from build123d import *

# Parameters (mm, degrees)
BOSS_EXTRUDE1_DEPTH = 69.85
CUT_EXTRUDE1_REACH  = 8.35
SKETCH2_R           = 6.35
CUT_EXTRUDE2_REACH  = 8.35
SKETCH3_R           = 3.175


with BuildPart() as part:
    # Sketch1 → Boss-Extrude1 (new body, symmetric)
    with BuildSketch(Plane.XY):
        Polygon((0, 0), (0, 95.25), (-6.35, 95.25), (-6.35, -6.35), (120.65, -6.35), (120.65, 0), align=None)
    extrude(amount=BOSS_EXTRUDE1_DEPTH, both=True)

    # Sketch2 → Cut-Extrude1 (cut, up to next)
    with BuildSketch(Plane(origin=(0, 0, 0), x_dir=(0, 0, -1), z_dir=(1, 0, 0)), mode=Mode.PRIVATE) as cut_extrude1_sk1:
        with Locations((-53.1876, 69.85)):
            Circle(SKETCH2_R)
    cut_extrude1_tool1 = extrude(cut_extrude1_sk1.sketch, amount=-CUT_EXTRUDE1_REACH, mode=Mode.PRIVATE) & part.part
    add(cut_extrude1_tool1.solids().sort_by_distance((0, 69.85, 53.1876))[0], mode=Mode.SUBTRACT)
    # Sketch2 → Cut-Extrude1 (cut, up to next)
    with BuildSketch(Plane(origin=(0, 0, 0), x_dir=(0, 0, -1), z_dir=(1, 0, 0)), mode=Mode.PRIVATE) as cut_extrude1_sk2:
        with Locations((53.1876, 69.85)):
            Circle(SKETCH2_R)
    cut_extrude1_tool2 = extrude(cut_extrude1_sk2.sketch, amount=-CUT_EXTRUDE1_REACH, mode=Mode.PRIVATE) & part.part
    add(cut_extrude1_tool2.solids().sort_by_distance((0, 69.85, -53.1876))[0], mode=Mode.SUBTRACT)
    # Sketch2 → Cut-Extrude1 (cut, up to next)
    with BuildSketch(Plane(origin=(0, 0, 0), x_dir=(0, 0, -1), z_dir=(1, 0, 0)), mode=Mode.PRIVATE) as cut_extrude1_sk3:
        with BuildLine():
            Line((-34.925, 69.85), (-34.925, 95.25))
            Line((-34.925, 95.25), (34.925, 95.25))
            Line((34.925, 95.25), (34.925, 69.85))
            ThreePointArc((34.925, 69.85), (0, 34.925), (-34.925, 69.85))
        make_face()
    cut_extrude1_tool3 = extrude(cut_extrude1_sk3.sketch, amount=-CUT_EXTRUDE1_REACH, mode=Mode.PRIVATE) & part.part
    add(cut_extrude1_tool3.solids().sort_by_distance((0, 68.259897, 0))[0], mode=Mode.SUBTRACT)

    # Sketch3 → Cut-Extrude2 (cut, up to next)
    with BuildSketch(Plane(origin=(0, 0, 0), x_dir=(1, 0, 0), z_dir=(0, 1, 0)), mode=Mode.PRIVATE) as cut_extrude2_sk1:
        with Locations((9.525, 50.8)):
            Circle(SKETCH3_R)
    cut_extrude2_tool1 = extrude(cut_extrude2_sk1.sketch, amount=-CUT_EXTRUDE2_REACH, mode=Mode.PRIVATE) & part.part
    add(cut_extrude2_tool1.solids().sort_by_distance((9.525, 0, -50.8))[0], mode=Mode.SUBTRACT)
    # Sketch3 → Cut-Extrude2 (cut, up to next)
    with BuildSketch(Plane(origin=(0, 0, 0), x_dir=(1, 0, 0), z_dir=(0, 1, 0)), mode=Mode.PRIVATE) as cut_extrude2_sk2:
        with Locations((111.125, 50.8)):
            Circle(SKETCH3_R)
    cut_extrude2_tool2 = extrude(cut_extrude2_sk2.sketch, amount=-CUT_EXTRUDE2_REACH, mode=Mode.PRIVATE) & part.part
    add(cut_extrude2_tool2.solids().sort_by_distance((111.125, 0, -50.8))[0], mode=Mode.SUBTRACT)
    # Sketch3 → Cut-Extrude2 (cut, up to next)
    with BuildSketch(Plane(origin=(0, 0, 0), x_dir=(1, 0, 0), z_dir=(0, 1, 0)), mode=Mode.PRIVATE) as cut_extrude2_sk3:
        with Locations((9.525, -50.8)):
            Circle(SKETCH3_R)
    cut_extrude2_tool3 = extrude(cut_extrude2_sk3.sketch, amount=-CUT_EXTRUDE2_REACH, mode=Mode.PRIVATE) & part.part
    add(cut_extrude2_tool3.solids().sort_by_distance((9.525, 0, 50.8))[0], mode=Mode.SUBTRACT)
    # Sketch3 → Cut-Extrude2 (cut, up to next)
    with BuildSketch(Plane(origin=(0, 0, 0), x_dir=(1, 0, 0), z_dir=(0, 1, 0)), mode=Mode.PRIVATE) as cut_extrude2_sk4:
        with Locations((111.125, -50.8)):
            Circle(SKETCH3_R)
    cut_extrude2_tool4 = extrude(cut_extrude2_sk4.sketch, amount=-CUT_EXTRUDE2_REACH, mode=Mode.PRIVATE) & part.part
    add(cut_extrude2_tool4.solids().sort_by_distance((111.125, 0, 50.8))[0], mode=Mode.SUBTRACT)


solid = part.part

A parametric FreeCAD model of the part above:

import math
import FreeCAD as App
import Part
import Sketcher
Q = App.Units.Quantity

doc = App.newDocument("Part")
params = doc.addObject("Spreadsheet::Sheet", "Params")
for row, (alias, value) in enumerate([
    ("sketch1_width", "5 in"),
    ("sketch1_height", "4 in"),
    ("sketch1_width2", "0.25 in"),
    ("pad1_length", "5.5 in"),
    ("sketch2_diameter", "0.5 in"),
    ("sketch3_diameter", "0.5 in"),
    ("sketch4_width", "1 in"),
    ("sketch4_radius", "1.375 in"),
    ("sketch5_diameter", "0.25 in"),
    ("sketch6_diameter", "0.25 in"),
    ("sketch7_diameter", "0.25 in"),
    ("sketch8_diameter", "0.25 in"),
], start=1):
    params.set(f"A{row}", alias)
    params.set(f"B{row}", "=" + value)
    params.setAlias(f"B{row}", alias)

body = doc.addObject("PartDesign::Body", "Body")

# Sketch on XY plane
sketch1 = body.newObject("Sketcher::SketchObject", "Sketch")
sketch1.AttachmentSupport = (doc.getObject("XY_Plane"), [""])
sketch1.MapMode = "FlatFace"
sketch1.addGeometry([
    Part.LineSegment(App.Vector(0, 0, 0), App.Vector(0, 95, 0)),  # 0
    Part.LineSegment(App.Vector(0, 95, 0), App.Vector(-6, 95, 0)),  # 1
    Part.LineSegment(App.Vector(-6, 95, 0), App.Vector(-6, -6, 0)),  # 2
    Part.LineSegment(App.Vector(-6, -6, 0), App.Vector(121, -6, 0)),  # 3
    Part.LineSegment(App.Vector(121, -6, 0), App.Vector(121, 0, 0)),  # 4
    Part.LineSegment(App.Vector(121, 0, 0), App.Vector(0, 0, 0)),  # 5
], False)
sketch1.addConstraint([
    Sketcher.Constraint("Coincident", 0, 2, 1, 1),
    Sketcher.Constraint("Coincident", 1, 2, 2, 1),
    Sketcher.Constraint("Coincident", 2, 2, 3, 1),
    Sketcher.Constraint("Coincident", 3, 2, 4, 1),
    Sketcher.Constraint("Coincident", 4, 2, 5, 1),
    Sketcher.Constraint("Coincident", 5, 2, 0, 1),
    Sketcher.Constraint("Vertical", 0),
    Sketcher.Constraint("Horizontal", 1),
    Sketcher.Constraint("Vertical", 2),
    Sketcher.Constraint("Horizontal", 3),
    Sketcher.Constraint("Vertical", 4),
    Sketcher.Constraint("Horizontal", 5),
    Sketcher.Constraint("Coincident", 5, 2, -1, 1),
    Sketcher.Constraint("Equal", 1, 4),
    Sketcher.Constraint("DistanceX", 3, 1, 3, 2, Q("5 in")),
    Sketcher.Constraint("DistanceY", 2, 2, 2, 1, Q("4 in")),
    Sketcher.Constraint("DistanceX", 1, 2, 1, 1, Q("0.25 in")),
])
sketch1.setExpression("Constraints[14]", "Params.sketch1_width")
sketch1.setExpression("Constraints[15]", "Params.sketch1_height")
sketch1.setExpression("Constraints[16]", "Params.sketch1_width2")
pad1 = body.newObject("PartDesign::Pad", "Pad")
pad1.Profile = sketch1
pad1.setExpression("Length", "Params.pad1_length")
pad1.Midplane = True

# Sketch on YZ plane
sketch2 = body.newObject("Sketcher::SketchObject", "Sketch001")
sketch2.AttachmentSupport = (doc.getObject("YZ_Plane"), [""])
sketch2.MapMode = "FlatFace"
sketch2.addGeometry(Part.Circle(App.Vector(70, 53, 0), App.Vector(0, 0, 1), 6), False)
sketch2.addConstraint([
    Sketcher.Constraint("Diameter", 0, Q("0.5 in")),
    Sketcher.Constraint("DistanceX", -1, 1, 0, 3, Q("2.75 in")),
    Sketcher.Constraint("DistanceY", -1, 1, 0, 3, Q("2.094 in")),
])
sketch2.setExpression("Constraints[0]", "Params.sketch2_diameter")
pocket1 = body.newObject("PartDesign::Pocket", "Pocket")
pocket1.Profile = sketch2
pocket1.Type = "UpToFirst"

# Sketch on YZ plane
sketch3 = body.newObject("Sketcher::SketchObject", "Sketch002")
sketch3.AttachmentSupport = (doc.getObject("YZ_Plane"), [""])
sketch3.MapMode = "FlatFace"
sketch3.addGeometry(Part.Circle(App.Vector(70, -53, 0), App.Vector(0, 0, 1), 6), False)
sketch3.addConstraint([
    Sketcher.Constraint("Diameter", 0, Q("0.5 in")),
    Sketcher.Constraint("DistanceX", -1, 1, 0, 3, Q("2.75 in")),
    Sketcher.Constraint("DistanceY", 0, 3, -1, 1, Q("2.094 in")),
])
sketch3.setExpression("Constraints[0]", "Params.sketch3_diameter")
pocket2 = body.newObject("PartDesign::Pocket", "Pocket001")
pocket2.Profile = sketch3
pocket2.Type = "UpToFirst"

# Sketch on YZ plane
sketch4 = body.newObject("Sketcher::SketchObject", "Sketch003")
sketch4.AttachmentSupport = (doc.getObject("YZ_Plane"), [""])
sketch4.MapMode = "FlatFace"
sketch4.addGeometry([
    Part.LineSegment(App.Vector(95, 35, 0), App.Vector(70, 35, 0)),
    Part.ArcOfCircle(Part.Circle(App.Vector(70, 0, 0), App.Vector(0, 0, 1), 35), math.radians(90), math.radians(270)),
    Part.LineSegment(App.Vector(70, -35, 0), App.Vector(95, -35, 0)),
    Part.LineSegment(App.Vector(95, -35, 0), App.Vector(95, 35, 0)),
], False)
sketch4.addConstraint([
    Sketcher.Constraint("Tangent", 0, 2, 1, 1),
    Sketcher.Constraint("Tangent", 1, 2, 2, 1),
    Sketcher.Constraint("Coincident", 2, 2, 3, 1),
    Sketcher.Constraint("Coincident", 3, 2, 0, 1),
    Sketcher.Constraint("Horizontal", 0),
    Sketcher.Constraint("Horizontal", 2),
    Sketcher.Constraint("Vertical", 3),
    Sketcher.Constraint("PointOnObject", 1, 3, -1),
    Sketcher.Constraint("DistanceX", 0, 2, 0, 1, Q("1 in")),
    Sketcher.Constraint("Radius", 1, Q("1.375 in")),
    Sketcher.Constraint("DistanceX", -1, 1, 1, 3, Q("2.75 in")),
])
sketch4.setExpression("Constraints[8]", "Params.sketch4_width")
sketch4.setExpression("Constraints[9]", "Params.sketch4_radius")
pocket3 = body.newObject("PartDesign::Pocket", "Pocket002")
pocket3.Profile = sketch4
pocket3.Type = "UpToFirst"

# Sketch on XZ plane
sketch5 = body.newObject("Sketcher::SketchObject", "Sketch004")
sketch5.AttachmentSupport = (doc.getObject("XZ_Plane"), [""])
sketch5.MapMode = "FlatFace"
sketch5.addGeometry(Part.Circle(App.Vector(9.5, -50.8, 0), App.Vector(0, 0, 1), 3.2), False)
sketch5.addConstraint([
    Sketcher.Constraint("Diameter", 0, Q("0.25 in")),
    Sketcher.Constraint("DistanceY", 0, 3, -1, 1, Q("2 in")),
    Sketcher.Constraint("DistanceX", -1, 1, 0, 3, Q("0.375 in")),
])
sketch5.setExpression("Constraints[0]", "Params.sketch5_diameter")
pocket4 = body.newObject("PartDesign::Pocket", "Pocket003")
pocket4.Profile = sketch5
pocket4.Type = "UpToFirst"
pocket4.Reversed = True

# Sketch on XZ plane
sketch6 = body.newObject("Sketcher::SketchObject", "Sketch005")
sketch6.AttachmentSupport = (doc.getObject("XZ_Plane"), [""])
sketch6.MapMode = "FlatFace"
sketch6.addGeometry(Part.Circle(App.Vector(111.1, -50.8, 0), App.Vector(0, 0, 1), 3.2), False)
sketch6.addConstraint([
    Sketcher.Constraint("Diameter", 0, Q("0.25 in")),
    Sketcher.Constraint("DistanceY", 0, 3, -1, 1, Q("2 in")),
    Sketcher.Constraint("DistanceX", -1, 1, 0, 3, Q("4.375 in")),
])
sketch6.setExpression("Constraints[0]", "Params.sketch6_diameter")
pocket5 = body.newObject("PartDesign::Pocket", "Pocket004")
pocket5.Profile = sketch6
pocket5.Type = "UpToFirst"
pocket5.Reversed = True

# Sketch on XZ plane
sketch7 = body.newObject("Sketcher::SketchObject", "Sketch006")
sketch7.AttachmentSupport = (doc.getObject("XZ_Plane"), [""])
sketch7.MapMode = "FlatFace"
sketch7.addGeometry(Part.Circle(App.Vector(9.5, 50.8, 0), App.Vector(0, 0, 1), 3.2), False)
sketch7.addConstraint([
    Sketcher.Constraint("Diameter", 0, Q("0.25 in")),
    Sketcher.Constraint("DistanceY", -1, 1, 0, 3, Q("2 in")),
    Sketcher.Constraint("DistanceX", -1, 1, 0, 3, Q("0.375 in")),
])
sketch7.setExpression("Constraints[0]", "Params.sketch7_diameter")
pocket6 = body.newObject("PartDesign::Pocket", "Pocket005")
pocket6.Profile = sketch7
pocket6.Type = "UpToFirst"
pocket6.Reversed = True

# Sketch on XZ plane
sketch8 = body.newObject("Sketcher::SketchObject", "Sketch007")
sketch8.AttachmentSupport = (doc.getObject("XZ_Plane"), [""])
sketch8.MapMode = "FlatFace"
sketch8.addGeometry(Part.Circle(App.Vector(111.1, 50.8, 0), App.Vector(0, 0, 1), 3.2), False)
sketch8.addConstraint([
    Sketcher.Constraint("Diameter", 0, Q("0.25 in")),
    Sketcher.Constraint("DistanceY", -1, 1, 0, 3, Q("2 in")),
    Sketcher.Constraint("DistanceX", -1, 1, 0, 3, Q("4.375 in")),
])
sketch8.setExpression("Constraints[0]", "Params.sketch8_diameter")
pocket7 = body.newObject("PartDesign::Pocket", "Pocket006")
pocket7.Profile = sketch8
pocket7.Type = "UpToFirst"
pocket7.Reversed = True

doc.recompute()
